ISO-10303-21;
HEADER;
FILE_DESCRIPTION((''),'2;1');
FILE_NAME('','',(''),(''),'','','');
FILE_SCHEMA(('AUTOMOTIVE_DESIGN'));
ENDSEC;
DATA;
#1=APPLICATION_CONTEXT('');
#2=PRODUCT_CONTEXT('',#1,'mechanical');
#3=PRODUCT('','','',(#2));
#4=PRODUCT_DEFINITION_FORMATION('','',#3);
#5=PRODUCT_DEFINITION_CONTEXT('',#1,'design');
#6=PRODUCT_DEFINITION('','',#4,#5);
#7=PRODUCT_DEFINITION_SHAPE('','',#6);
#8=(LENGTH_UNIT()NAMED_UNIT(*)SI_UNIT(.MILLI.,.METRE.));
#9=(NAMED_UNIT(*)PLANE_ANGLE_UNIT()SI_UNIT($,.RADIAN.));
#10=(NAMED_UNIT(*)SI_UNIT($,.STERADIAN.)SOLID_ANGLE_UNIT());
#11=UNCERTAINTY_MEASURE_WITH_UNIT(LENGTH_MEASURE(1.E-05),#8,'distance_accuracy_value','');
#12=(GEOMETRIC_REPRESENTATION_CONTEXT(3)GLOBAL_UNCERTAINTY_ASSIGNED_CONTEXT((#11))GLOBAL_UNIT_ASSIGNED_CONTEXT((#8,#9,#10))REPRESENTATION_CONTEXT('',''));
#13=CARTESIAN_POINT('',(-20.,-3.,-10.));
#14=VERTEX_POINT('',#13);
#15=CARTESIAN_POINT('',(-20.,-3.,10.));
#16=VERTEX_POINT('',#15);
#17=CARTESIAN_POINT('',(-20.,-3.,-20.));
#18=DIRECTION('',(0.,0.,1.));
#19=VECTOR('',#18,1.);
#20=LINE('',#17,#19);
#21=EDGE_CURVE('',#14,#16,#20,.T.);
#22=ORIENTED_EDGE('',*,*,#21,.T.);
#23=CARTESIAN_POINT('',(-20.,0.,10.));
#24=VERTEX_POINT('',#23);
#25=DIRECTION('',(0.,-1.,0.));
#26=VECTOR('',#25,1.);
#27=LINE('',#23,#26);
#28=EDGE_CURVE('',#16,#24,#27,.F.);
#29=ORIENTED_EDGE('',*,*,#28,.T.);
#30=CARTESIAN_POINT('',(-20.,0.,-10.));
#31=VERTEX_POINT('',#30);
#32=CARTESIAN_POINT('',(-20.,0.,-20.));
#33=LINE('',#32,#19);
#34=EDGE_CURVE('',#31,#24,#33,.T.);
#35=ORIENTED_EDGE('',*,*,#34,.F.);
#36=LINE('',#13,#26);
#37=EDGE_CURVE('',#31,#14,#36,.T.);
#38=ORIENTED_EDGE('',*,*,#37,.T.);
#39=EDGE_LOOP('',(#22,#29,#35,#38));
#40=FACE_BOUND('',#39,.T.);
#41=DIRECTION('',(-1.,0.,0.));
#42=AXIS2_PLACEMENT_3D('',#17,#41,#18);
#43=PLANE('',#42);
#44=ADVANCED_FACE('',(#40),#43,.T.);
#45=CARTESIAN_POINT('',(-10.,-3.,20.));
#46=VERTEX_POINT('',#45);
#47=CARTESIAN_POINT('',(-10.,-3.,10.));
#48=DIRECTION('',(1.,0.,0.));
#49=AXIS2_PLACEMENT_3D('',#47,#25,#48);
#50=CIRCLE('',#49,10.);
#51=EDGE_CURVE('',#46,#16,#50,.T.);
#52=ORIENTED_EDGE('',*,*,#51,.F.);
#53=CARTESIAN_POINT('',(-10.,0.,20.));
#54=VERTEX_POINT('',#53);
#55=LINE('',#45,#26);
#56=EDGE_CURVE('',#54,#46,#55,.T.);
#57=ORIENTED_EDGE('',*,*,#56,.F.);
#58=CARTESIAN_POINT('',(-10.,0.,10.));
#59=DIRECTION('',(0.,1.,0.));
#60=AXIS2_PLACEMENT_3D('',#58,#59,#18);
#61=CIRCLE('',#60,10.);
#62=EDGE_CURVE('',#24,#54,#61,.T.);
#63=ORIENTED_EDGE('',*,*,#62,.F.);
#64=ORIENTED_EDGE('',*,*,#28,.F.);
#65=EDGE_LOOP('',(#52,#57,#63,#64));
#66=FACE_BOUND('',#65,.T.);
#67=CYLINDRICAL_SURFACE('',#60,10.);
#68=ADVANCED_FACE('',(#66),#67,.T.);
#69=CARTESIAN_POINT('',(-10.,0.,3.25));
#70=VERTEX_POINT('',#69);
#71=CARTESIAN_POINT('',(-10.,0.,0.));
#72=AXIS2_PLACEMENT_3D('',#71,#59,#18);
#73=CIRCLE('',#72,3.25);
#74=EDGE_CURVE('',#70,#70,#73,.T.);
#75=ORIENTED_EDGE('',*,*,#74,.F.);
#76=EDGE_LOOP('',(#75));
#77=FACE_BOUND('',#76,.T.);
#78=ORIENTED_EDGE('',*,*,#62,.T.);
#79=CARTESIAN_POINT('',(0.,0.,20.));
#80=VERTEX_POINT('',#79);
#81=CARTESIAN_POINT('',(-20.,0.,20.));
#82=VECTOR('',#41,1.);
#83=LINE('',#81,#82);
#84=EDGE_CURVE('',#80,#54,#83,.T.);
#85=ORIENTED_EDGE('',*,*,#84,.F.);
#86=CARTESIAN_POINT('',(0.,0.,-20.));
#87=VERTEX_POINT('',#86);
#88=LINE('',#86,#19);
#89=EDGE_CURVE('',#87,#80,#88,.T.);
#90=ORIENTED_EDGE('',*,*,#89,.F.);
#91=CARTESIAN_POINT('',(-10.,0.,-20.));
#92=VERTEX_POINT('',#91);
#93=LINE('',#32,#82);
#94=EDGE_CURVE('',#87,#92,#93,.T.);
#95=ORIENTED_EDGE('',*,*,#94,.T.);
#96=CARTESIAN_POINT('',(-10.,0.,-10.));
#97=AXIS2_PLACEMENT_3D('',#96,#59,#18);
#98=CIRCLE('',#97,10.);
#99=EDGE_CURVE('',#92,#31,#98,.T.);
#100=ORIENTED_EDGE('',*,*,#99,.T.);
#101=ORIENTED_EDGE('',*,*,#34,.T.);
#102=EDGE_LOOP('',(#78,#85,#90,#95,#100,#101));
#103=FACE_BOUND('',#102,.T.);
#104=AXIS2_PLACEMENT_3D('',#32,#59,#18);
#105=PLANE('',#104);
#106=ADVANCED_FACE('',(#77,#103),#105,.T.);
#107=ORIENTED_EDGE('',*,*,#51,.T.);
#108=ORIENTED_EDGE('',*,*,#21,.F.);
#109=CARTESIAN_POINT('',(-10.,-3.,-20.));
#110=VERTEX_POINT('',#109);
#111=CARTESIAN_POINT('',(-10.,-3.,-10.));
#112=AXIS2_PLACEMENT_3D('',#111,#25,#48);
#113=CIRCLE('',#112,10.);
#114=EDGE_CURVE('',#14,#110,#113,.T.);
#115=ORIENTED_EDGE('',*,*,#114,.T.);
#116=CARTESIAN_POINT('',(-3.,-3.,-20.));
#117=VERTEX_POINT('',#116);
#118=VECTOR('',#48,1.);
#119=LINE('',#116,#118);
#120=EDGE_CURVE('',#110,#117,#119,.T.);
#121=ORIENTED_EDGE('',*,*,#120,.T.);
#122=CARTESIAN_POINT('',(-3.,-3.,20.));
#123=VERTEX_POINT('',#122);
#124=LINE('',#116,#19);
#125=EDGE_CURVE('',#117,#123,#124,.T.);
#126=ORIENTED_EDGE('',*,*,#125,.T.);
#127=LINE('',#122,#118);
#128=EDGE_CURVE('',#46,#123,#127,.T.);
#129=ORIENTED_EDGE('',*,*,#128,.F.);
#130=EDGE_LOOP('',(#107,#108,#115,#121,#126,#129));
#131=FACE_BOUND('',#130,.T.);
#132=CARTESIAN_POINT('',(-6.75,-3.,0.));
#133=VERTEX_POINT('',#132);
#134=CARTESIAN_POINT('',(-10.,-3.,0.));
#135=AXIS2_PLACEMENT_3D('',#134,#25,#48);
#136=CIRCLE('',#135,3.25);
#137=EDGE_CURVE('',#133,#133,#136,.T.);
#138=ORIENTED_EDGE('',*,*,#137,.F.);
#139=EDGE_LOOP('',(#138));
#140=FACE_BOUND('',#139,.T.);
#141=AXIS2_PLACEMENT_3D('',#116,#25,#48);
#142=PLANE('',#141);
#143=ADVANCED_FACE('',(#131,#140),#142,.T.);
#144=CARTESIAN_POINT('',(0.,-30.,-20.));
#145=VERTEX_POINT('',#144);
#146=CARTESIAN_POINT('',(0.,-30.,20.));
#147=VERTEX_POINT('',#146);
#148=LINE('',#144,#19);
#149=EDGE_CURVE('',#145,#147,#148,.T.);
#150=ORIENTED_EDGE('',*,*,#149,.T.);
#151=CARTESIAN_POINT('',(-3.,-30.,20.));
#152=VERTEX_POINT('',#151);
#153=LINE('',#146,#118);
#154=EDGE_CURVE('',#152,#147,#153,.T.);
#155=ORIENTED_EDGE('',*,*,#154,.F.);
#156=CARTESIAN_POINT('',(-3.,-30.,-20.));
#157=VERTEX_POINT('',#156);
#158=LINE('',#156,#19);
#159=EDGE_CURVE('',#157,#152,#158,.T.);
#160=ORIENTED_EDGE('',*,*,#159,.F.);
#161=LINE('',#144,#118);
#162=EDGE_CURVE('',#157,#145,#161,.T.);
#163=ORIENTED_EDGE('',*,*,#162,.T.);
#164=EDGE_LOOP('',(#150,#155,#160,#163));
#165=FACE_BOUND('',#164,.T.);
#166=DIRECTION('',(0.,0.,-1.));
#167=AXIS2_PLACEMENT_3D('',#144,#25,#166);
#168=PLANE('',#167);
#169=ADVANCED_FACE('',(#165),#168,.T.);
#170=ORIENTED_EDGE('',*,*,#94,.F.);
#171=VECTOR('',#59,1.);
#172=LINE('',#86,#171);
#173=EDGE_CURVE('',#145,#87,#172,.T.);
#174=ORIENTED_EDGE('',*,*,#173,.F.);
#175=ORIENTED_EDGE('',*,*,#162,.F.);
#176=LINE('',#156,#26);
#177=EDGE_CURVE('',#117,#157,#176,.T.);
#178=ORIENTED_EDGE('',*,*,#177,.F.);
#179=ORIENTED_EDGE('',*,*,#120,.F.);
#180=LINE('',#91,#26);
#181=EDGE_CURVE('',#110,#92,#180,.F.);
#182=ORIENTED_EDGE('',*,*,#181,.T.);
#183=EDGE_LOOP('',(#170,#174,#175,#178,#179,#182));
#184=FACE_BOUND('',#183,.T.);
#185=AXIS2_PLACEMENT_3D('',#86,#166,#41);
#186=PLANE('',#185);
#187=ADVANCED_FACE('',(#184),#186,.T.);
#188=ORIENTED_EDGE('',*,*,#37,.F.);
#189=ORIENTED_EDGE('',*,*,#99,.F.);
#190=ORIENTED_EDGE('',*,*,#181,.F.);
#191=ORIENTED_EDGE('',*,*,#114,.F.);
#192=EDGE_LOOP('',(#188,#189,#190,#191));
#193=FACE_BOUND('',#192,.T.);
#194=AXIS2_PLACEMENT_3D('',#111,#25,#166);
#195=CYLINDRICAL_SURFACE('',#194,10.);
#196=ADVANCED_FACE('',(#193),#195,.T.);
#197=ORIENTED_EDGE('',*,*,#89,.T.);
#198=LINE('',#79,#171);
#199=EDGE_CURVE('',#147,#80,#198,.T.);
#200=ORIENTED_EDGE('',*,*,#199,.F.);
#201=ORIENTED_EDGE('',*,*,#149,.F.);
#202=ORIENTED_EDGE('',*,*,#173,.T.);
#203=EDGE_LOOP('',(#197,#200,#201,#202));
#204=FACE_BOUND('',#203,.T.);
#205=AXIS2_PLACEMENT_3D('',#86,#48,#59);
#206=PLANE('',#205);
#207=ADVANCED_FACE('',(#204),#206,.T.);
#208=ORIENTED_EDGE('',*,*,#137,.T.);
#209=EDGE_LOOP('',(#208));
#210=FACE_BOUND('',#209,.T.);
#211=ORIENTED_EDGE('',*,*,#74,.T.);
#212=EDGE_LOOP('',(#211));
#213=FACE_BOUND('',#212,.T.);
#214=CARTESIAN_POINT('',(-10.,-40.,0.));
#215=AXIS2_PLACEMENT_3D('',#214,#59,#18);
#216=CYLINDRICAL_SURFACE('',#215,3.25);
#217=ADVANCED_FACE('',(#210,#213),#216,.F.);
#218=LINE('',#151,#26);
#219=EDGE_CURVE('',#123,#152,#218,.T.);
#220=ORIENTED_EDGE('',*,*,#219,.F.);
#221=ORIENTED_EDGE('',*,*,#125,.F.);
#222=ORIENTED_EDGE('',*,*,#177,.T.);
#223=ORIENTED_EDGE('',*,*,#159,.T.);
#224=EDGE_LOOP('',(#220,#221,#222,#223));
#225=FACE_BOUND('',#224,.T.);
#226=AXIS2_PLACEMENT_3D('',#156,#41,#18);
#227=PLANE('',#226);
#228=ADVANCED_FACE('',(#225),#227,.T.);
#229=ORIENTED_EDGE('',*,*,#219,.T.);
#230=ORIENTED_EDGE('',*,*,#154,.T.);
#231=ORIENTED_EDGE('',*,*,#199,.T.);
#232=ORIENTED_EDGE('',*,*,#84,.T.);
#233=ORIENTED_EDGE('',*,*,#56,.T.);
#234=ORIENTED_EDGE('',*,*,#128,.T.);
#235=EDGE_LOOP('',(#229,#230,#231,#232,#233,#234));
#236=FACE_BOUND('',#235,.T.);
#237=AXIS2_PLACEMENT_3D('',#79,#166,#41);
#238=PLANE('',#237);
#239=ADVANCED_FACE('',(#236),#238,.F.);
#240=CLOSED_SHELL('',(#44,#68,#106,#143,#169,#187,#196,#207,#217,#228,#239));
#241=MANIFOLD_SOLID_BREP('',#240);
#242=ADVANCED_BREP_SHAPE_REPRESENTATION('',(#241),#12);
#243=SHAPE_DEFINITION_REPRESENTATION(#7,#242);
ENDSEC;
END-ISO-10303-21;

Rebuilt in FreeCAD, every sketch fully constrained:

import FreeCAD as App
import Part
import Sketcher

V = App.Vector


def edges_at(feature, points):
    """Names of the edges that pass closest to the given points."""
    edges = feature.Shape.Edges
    near = lambda p: min(range(len(edges)), key=lambda i: edges[i].distToShape(Part.Vertex(*p))[0])
    return sorted({f"Edge{near(p) + 1}" for p in points})

doc = App.newDocument("Part")
body = doc.addObject("PartDesign::Body", "Body")

sketch1 = body.newObject("Sketcher::SketchObject", "Sketch")
sketch1.AttachmentSupport = (doc.getObject("XY_Plane"), [""])
sketch1.MapMode = "FlatFace"
sketch1.addGeometry([
    Part.LineSegment(V(0, 0, 0), V(-20, 0, 0)),
    Part.LineSegment(V(-20, 0, 0), V(-20, -3, 0)),
    Part.LineSegment(V(-20, -3, 0), V(-3, -3, 0)),
    Part.LineSegment(V(-3, -3, 0), V(-3, -30, 0)),
    Part.LineSegment(V(-3, -30, 0), V(0, -30, 0)),
    Part.LineSegment(V(0, -30, 0), V(0, 0, 0)),
], False)
sketch1.addConstraint([
    Sketcher.Constraint("Coincident", 0, 2, 1, 1),
    Sketcher.Constraint("Coincident", 1, 2, 2, 1),
    Sketcher.Constraint("Coincident", 2, 2, 3, 1),
    Sketcher.Constraint("Coincident", 3, 2, 4, 1),
    Sketcher.Constraint("Coincident", 4, 2, 5, 1),
    Sketcher.Constraint("Coincident", 5, 2, 0, 1),
    Sketcher.Constraint("Horizontal", 0),
    Sketcher.Constraint("Vertical", 1),
    Sketcher.Constraint("Horizontal", 2),
    Sketcher.Constraint("Vertical", 3),
    Sketcher.Constraint("Horizontal", 4),
    Sketcher.Constraint("Vertical", 5),
    Sketcher.Constraint("Coincident", 5, 2, -1, 1),
    Sketcher.Constraint("Equal", 4, 1),
    Sketcher.Constraint("DistanceX", 0, 2, 0, 1, 20.0),
    Sketcher.Constraint("DistanceX", 2, 1, 2, 2, 17.0),
    Sketcher.Constraint("DistanceY", 3, 2, 3, 1, 27.0),
])
pad1 = body.newObject("PartDesign::Pad", "Pad")
pad1.Profile = sketch1
pad1.Type = "TwoLengths"
pad1.Length = 20
pad1.Length2 = 20

sketch2 = body.newObject("Sketcher::SketchObject", "Sketch001")
sketch2.AttachmentSupport = (doc.getObject("XZ_Plane"), [""])
sketch2.MapMode = "FlatFace"
sketch2.addGeometry(Part.Circle(V(-10, 0, 0), V(0, 0, 1), 3.25), False)
sketch2.addConstraint([
    Sketcher.Constraint("PointOnObject", 0, 3, -1),
    Sketcher.Constraint("Diameter", 0, 6.5),
    Sketcher.Constraint("DistanceX", 0, 3, -1, 1, 10.0),
])
pocket1 = body.newObject("PartDesign::Pocket", "Pocket")
pocket1.Profile = sketch2
pocket1.Length = 40
pocket1.Reversed = True
doc.recompute()

fillet = body.newObject("PartDesign::Fillet", "Fillet")
fillet.Base = (pocket1, edges_at(pocket1, [(-20, -1.5, 20), (-20, -1.5, -20)]))
fillet.Radius = 10

doc.recompute()
